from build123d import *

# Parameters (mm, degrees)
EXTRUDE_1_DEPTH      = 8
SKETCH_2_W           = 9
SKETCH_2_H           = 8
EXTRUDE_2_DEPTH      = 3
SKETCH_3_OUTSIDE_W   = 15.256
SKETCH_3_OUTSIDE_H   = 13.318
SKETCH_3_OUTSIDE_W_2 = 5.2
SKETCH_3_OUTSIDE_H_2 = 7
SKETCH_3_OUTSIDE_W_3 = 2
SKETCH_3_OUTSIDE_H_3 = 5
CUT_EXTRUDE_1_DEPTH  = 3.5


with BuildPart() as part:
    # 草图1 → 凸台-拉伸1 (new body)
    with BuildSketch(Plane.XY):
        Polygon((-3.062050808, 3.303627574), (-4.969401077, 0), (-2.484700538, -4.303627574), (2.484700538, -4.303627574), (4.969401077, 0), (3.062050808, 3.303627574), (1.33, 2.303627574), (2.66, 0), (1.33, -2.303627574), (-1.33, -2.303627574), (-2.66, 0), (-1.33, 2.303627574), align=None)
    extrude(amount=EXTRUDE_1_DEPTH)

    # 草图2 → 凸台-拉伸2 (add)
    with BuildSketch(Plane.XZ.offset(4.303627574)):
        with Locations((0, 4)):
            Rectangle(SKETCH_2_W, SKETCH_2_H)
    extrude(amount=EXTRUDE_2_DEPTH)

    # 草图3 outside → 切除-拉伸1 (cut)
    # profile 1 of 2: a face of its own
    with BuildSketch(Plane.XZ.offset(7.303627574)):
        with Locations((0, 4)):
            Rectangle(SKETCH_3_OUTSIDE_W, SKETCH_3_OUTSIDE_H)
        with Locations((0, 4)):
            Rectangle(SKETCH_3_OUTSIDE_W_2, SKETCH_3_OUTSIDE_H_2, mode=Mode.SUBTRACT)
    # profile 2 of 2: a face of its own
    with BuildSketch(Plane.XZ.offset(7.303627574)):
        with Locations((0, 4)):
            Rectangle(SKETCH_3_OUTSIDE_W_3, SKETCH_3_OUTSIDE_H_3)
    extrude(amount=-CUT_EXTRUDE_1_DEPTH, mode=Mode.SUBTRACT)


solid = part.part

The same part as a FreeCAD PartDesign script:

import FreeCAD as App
import Part
import Sketcher
Q = App.Units.Quantity


def add_polygon(sketch, points):
    """Adds a closed chain of lines whose ends are joined by coincident constraints."""
    first, n = sketch.GeometryCount, len(points)
    for a, b in zip(points, points[1:] + points[:1]):
        sketch.addGeometry(Part.LineSegment(App.Vector(*a, 0), App.Vector(*b, 0)), False)
    for i in range(n):
        sketch.addConstraint(Sketcher.Constraint("Coincident", first + i, 2, first + (i + 1) % n, 1))

doc = App.newDocument("Part")
body = doc.addObject("PartDesign::Body", "Body")

sketch1 = doc.addObject("Sketcher::SketchObject", "Sketch")
body.addObject(sketch1)
sketch1.AttachmentSupport = (doc.XY_Plane, [""])
sketch1.MapMode = "FlatFace"
add_polygon(sketch1, [(-3.1, 3.3), (-5, 0), (-2.5, -4.3), (2.5, -4.3), (5, 0), (3.1, 3.3), (1.3, 2.3), (2.7, 0), (1.3, -2.3), (-1.3, -2.3), (-2.7, 0), (-1.3, 2.3)])
sketch1.addConstraint(Sketcher.Constraint("Horizontal", 2))
sketch1.addConstraint(Sketcher.Constraint("Horizontal", 8))
sketch1.addConstraint(Sketcher.Constraint("Symmetric", 0, 2, 3, 2, -1, 1))
sketch1.addConstraint(Sketcher.Constraint("Symmetric", 5, 2, 8, 2, -1, 1))
sketch1.addConstraint(Sketcher.Constraint("Symmetric", 6, 2, 9, 2, -1, 1))
sketch1.addConstraint(Sketcher.Constraint("Symmetric", 7, 2, 10, 2, -1, 1))
sketch1.addConstraint(Sketcher.Constraint("Symmetric", 4, 2, 11, 2, -2))
sketch1.addConstraint(Sketcher.Constraint("PointOnObject", 0, 2, -1))
sketch1.addConstraint(Sketcher.Constraint("PointOnObject", 6, 2, -1))
sketch1.addConstraint(Sketcher.Constraint("Parallel", 0, 3))
sketch1.addConstraint(Sketcher.Constraint("Parallel", 1, 4))
sketch1.addConstraint(Sketcher.Constraint("Perpendicular", 4, 5))
sketch1.addConstraint(Sketcher.Constraint("Perpendicular", 5, 6))
sketch1.addConstraint(Sketcher.Constraint("Parallel", 3, 7))
sketch1.addConstraint(Sketcher.Constraint("Angle", 0, Q("-120 deg")))
sketch1.addConstraint(Sketcher.Constraint("Distance", 5, 2.0))
sketch1.addConstraint(Sketcher.Constraint("DistanceY", 2, 2, 7, 2, 2.0))
sketch1.addConstraint(Sketcher.Constraint("DistanceX", 8, 2, 8, 1, 2.66))
sketch1.addConstraint(Sketcher.Constraint("Distance", 6, 2.66))
pad1 = doc.addObject("PartDesign::Pad", "Pad")
body.addObject(pad1)
pad1.Profile = sketch1
pad1.Length = 8

sketch2 = doc.addObject("Sketcher::SketchObject", "Sketch001")
body.addObject(sketch2)
sketch2.AttachmentSupport = (doc.XZ_Plane, [""])
sketch2.MapMode = "FlatFace"
sketch2.AttachmentOffset = App.Placement(App.Vector(0, 0, 4.303628), App.Rotation())
add_polygon(sketch2, [(-4, 8), (-4, 0), (4, 0), (4, 8)])
sketch2.addConstraint(Sketcher.Constraint("Vertical", 0))
sketch2.addConstraint(Sketcher.Constraint("Horizontal", 1))
sketch2.addConstraint(Sketcher.Constraint("Vertical", 2))
sketch2.addConstraint(Sketcher.Constraint("Horizontal", 3))
sketch2.addConstraint(Sketcher.Constraint("Symmetric", 0, 2, 1, 2, -1, 1))
sketch2.addConstraint(Sketcher.Constraint("DistanceX", 1, 1, 1, 2, 9.0))
sketch2.addConstraint(Sketcher.Constraint("DistanceY", 0, 2, 0, 1, 8.0))
pad2 = doc.addObject("PartDesign::Pad", "Pad001")
body.addObject(pad2)
pad2.Profile = sketch2
pad2.Length = 3

sketch3 = doc.addObject("Sketcher::SketchObject", "Sketch002")
body.addObject(sketch3)
sketch3.AttachmentSupport = (doc.XZ_Plane, [""])
sketch3.MapMode = "FlatFace"
sketch3.AttachmentOffset = App.Placement(App.Vector(0, 0, 7.303628), App.Rotation())
add_polygon(sketch3, [(-7.6, 10.7), (-7.6, -2.7), (7.6, -2.7), (7.6, 10.7)])
add_polygon(sketch3, [(2.6, 0.5), (-2.6, 0.5), (-2.6, 7.5), (2.6, 7.5)])
add_polygon(sketch3, [(-1, 6.5), (-1, 1.5), (1, 1.5), (1, 6.5)])
sketch3.addConstraint(Sketcher.Constraint("Vertical", 0))
sketch3.addConstraint(Sketcher.Constraint("Horizontal", 1))
sketch3.addConstraint(Sketcher.Constraint("Vertical", 2))
sketch3.addConstraint(Sketcher.Constraint("Horizontal", 3))
sketch3.addConstraint(Sketcher.Constraint("Horizontal", 4))
sketch3.addConstraint(Sketcher.Constraint("Vertical", 5))
sketch3.addConstraint(Sketcher.Constraint("Horizontal", 6))
sketch3.addConstraint(Sketcher.Constraint("Vertical", 7))
sketch3.addConstraint(Sketcher.Constraint("Vertical", 8))
sketch3.addConstraint(Sketcher.Constraint("Horizontal", 9))
sketch3.addConstraint(Sketcher.Constraint("Vertical", 10))
sketch3.addConstraint(Sketcher.Constraint("Horizontal", 11))
sketch3.addConstraint(Sketcher.Constraint("DistanceX", 9, 1, 9, 2, 2.0))
sketch3.addConstraint(Sketcher.Constraint("DistanceY", 5, 1, 5, 2, 7.0))
sketch3.addConstraint(Sketcher.Constraint("DistanceY", 8, 2, 8, 1, 5.0))
sketch3.addConstraint(Sketcher.Constraint("DistanceX", 4, 2, 4, 1, 5.2))
sketch3.addConstraint(Sketcher.Constraint("DistanceX", 8, 2, -1, 1, 1.0))
sketch3.addConstraint(Sketcher.Constraint("DistanceY", 4, 2, 8, 2, 1.0))
sketch3.addConstraint(Sketcher.Constraint("DistanceX", 4, 2, -1, 1, 2.6))
sketch3.addConstraint(Sketcher.Constraint("DistanceY", -1, 1, 4, 2, 0.5))
sketch3.addConstraint(Sketcher.Constraint("DistanceX", 1, 1, 1, 2, 15.256))
sketch3.addConstraint(Sketcher.Constraint("DistanceY", 0, 2, 0, 1, 13.318))
sketch3.addConstraint(Sketcher.Constraint("DistanceX", 0, 2, -1, 1, 7.628))
sketch3.addConstraint(Sketcher.Constraint("DistanceY", 0, 2, -1, 1, 2.659))
pocket1 = doc.addObject("PartDesign::Pocket", "Pocket")
body.addObject(pocket1)
pocket1.Profile = sketch3
pocket1.Length = 3.5

doc.recompute()
